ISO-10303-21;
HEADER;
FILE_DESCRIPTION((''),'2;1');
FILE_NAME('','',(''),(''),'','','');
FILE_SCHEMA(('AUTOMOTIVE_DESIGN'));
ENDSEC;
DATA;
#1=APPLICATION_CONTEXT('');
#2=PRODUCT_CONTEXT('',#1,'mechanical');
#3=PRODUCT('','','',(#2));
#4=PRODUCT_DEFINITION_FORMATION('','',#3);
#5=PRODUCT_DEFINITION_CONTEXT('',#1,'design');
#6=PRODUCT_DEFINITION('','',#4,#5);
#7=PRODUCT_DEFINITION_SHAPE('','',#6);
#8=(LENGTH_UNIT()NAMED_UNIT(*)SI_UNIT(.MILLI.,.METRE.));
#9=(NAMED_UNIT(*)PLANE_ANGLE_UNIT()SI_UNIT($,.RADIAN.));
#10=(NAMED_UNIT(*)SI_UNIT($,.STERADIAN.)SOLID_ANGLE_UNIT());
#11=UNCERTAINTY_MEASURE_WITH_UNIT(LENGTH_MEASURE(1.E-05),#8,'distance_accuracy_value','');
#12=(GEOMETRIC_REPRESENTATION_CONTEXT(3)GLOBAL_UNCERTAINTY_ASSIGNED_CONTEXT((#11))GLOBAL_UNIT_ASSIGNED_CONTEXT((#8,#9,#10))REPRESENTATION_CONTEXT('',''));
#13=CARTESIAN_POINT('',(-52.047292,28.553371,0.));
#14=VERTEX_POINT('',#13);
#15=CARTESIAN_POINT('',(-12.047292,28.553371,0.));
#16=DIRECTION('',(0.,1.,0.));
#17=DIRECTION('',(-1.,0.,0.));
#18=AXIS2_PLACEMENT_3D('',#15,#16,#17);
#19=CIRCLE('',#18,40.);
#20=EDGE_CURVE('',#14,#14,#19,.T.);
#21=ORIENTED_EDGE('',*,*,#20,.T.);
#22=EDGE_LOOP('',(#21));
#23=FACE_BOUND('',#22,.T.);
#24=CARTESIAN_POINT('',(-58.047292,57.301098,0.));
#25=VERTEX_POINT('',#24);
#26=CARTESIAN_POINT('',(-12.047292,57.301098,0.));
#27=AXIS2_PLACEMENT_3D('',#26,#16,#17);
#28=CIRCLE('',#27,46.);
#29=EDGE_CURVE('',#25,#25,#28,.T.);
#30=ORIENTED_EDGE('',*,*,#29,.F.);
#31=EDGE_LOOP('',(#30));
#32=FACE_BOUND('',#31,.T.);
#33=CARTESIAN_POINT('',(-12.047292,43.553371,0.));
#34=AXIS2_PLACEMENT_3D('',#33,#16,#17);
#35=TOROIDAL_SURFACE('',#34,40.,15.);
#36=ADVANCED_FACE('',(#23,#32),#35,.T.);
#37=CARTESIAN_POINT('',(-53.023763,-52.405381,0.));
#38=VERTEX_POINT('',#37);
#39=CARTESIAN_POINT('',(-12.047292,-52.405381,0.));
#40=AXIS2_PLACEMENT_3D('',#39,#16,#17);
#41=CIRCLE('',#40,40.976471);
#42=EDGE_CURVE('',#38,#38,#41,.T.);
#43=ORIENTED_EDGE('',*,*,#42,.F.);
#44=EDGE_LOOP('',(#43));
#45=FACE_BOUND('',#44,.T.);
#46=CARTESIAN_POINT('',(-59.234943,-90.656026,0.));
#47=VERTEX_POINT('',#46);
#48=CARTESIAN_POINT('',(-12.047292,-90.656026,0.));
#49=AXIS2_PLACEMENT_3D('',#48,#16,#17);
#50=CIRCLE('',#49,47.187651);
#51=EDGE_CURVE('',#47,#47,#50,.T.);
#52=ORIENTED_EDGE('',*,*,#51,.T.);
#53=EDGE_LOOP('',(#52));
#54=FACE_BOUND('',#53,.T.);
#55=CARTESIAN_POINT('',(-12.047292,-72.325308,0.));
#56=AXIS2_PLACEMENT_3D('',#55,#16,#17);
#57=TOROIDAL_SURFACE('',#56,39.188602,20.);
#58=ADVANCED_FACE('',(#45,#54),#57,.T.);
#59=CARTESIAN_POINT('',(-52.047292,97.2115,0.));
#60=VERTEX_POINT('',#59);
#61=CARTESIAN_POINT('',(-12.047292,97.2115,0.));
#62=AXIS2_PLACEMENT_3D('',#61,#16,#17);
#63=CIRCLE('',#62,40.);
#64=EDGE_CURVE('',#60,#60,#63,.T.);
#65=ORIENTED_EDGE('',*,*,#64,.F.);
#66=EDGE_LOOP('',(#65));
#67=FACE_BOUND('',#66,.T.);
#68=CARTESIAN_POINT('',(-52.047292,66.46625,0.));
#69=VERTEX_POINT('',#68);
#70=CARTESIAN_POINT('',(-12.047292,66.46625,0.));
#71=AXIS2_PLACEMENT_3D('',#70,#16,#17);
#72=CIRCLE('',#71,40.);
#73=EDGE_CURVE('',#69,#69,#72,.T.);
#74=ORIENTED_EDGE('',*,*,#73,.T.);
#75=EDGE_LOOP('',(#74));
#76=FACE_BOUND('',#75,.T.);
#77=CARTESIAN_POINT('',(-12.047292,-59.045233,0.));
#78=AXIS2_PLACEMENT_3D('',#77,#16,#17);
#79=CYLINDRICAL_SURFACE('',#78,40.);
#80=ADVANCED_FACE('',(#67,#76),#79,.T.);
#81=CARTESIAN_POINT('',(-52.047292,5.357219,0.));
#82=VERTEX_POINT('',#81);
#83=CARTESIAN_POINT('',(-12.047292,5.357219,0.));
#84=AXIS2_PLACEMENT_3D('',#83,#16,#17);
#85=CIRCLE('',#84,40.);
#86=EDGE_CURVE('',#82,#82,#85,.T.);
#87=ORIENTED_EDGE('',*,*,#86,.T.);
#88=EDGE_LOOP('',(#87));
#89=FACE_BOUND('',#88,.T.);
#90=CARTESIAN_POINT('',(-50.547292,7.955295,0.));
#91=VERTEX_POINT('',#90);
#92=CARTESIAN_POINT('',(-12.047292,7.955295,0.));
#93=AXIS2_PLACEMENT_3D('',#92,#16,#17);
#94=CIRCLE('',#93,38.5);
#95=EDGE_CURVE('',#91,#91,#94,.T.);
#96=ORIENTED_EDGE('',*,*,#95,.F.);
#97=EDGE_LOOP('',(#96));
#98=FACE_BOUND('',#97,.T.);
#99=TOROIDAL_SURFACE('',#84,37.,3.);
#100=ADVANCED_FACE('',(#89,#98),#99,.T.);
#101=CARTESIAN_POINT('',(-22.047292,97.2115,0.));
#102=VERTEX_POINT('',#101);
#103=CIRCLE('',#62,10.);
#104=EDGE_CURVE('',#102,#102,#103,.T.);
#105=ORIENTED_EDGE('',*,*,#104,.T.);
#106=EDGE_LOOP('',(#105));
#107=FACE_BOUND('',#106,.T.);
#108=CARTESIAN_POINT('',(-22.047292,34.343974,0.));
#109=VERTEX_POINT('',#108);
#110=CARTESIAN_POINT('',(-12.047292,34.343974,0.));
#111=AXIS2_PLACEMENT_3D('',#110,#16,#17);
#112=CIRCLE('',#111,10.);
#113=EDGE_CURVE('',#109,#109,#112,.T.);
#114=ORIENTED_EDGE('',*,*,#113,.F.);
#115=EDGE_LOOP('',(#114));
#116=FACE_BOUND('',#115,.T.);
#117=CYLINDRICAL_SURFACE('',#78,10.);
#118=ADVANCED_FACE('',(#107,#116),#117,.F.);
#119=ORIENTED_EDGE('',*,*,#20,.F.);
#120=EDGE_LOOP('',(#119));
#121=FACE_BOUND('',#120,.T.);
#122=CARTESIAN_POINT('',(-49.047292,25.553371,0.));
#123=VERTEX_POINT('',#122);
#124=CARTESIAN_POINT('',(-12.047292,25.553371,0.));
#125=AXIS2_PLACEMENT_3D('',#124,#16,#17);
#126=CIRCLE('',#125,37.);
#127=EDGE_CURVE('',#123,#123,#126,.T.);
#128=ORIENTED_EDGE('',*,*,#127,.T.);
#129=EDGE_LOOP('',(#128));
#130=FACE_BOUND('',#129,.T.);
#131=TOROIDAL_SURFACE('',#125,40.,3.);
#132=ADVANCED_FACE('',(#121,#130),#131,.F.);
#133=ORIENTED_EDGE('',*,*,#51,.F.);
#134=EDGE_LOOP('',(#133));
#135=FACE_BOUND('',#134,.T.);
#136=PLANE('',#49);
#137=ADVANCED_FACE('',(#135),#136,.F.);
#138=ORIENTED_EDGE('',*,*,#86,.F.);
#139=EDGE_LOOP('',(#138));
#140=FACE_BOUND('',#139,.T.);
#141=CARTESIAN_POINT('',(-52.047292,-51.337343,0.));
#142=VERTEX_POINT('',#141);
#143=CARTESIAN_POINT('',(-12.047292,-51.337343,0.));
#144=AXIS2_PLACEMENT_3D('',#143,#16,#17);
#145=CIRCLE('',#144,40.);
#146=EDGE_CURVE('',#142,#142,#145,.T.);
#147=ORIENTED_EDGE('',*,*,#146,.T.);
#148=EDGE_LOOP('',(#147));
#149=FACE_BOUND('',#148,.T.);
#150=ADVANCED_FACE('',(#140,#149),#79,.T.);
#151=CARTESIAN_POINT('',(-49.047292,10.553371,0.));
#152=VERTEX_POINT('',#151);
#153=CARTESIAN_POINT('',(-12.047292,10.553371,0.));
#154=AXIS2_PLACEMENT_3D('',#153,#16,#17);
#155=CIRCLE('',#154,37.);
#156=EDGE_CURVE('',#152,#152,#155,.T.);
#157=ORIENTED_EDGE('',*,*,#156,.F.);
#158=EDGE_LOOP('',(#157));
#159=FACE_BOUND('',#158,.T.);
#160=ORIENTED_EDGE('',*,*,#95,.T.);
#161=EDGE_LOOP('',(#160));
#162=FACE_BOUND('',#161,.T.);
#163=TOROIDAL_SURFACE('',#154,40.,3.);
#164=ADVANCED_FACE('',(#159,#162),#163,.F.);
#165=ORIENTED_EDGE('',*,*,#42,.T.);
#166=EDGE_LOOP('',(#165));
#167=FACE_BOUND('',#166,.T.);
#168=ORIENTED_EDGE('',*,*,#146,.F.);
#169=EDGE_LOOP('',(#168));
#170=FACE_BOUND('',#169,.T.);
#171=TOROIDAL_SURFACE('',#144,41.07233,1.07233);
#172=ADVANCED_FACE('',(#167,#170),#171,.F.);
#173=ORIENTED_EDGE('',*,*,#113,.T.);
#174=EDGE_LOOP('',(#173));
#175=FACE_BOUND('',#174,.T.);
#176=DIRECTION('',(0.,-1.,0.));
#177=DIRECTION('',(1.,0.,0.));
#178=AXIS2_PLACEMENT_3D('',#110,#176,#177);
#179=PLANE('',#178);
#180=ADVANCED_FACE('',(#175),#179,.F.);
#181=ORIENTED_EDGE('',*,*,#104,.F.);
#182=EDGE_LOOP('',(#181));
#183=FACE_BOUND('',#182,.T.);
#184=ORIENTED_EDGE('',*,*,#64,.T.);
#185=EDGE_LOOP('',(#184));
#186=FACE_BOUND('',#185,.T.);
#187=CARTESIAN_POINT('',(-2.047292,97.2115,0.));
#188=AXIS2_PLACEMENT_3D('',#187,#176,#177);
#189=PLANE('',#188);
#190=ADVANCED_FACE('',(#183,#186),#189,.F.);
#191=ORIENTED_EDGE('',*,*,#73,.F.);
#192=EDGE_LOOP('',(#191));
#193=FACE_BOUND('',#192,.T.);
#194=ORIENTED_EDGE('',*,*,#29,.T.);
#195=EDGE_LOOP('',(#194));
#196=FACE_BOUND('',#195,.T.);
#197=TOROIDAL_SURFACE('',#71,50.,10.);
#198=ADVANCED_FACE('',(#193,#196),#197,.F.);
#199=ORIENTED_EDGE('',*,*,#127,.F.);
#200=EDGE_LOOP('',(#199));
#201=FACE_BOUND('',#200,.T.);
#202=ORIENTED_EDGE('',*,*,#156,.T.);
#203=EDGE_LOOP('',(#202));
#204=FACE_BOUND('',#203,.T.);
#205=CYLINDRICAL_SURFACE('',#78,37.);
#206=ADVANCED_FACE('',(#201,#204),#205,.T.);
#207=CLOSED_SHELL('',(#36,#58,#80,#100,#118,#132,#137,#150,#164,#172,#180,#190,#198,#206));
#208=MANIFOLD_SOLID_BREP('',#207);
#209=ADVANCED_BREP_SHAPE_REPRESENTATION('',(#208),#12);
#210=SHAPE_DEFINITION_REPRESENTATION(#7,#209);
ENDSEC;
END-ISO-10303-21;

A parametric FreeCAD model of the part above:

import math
import FreeCAD as App
import Part
import Sketcher
Q = App.Units.Quantity

doc = App.newDocument("Part")
body = doc.addObject("PartDesign::Body", "Body")

sketch1 = body.newObject("Sketcher::SketchObject", "Sketch")
sketch1.AttachmentSupport = (doc.getObject("XY_Plane"), [""])
sketch1.MapMode = "FlatFace"
sketch1.addGeometry(Part.LineSegment(App.Vector(-12, 34.3, 0), App.Vector(-12, -90.7, 0)), False)
sketch1.addGeometry(Part.LineSegment(App.Vector(-12, -90.7, 0), App.Vector(35.1, -90.7, 0)), False)
sketch1.addGeometry(Part.ArcOfCircle(Part.Circle(App.Vector(27.1, -72.3, 0), App.Vector(0, 0, 1), 20), math.radians(-66), math.radians(85)), False)
sketch1.addGeometry(Part.ArcOfCircle(Part.Circle(App.Vector(29, -51.3, 0), App.Vector(0, 0, 1), 1.1), math.radians(180), math.radians(265)), False)
sketch1.addGeometry(Part.LineSegment(App.Vector(28, -51.3, 0), App.Vector(28, 5.4, 0)), False)
sketch1.addGeometry(Part.ArcOfCircle(Part.Circle(App.Vector(25, 5.4, 0), App.Vector(0, 0, 1), 3), math.radians(0), math.radians(60)), False)
sketch1.addGeometry(Part.ArcOfCircle(Part.Circle(App.Vector(28, 10.6, 0), App.Vector(0, 0, 1), 3), math.radians(-180), math.radians(-120)), False)
sketch1.addGeometry(Part.LineSegment(App.Vector(25, 10.6, 0), App.Vector(25, 25.6, 0)), False)
sketch1.addGeometry(Part.ArcOfCircle(Part.Circle(App.Vector(28, 25.6, 0), App.Vector(0, 0, 1), 3), math.radians(90), math.radians(180)), False)
sketch1.addGeometry(Part.ArcOfCircle(Part.Circle(App.Vector(28, 43.6, 0), App.Vector(0, 0, 1), 15), math.radians(-90), math.radians(66)), False)
sketch1.addGeometry(Part.ArcOfCircle(Part.Circle(App.Vector(38, 66.5, 0), App.Vector(0, 0, 1), 10), math.radians(-180), math.radians(-114)), False)
sketch1.addGeometry(Part.LineSegment(App.Vector(28, 66.5, 0), App.Vector(28, 97.2, 0)), False)
sketch1.addGeometry(Part.LineSegment(App.Vector(28, 97.2, 0), App.Vector(-2, 97.2, 0)), False)
sketch1.addGeometry(Part.LineSegment(App.Vector(-2, 97.2, 0), App.Vector(-2, 34.3, 0)), False)
sketch1.addGeometry(Part.LineSegment(App.Vector(-2, 34.3, 0), App.Vector(-12, 34.3, 0)), False)
sketch1.addGeometry(Part.LineSegment(App.Vector(-12, 97.2, 0), App.Vector(-12, -90.7, 0)), True)
sketch1.addConstraint(Sketcher.Constraint("Coincident", 0, 2, 1, 1))
sketch1.addConstraint(Sketcher.Constraint("Coincident", 1, 2, 2, 1))
sketch1.addConstraint(Sketcher.Constraint("Tangent", 2, 2, 3, 2))
sketch1.addConstraint(Sketcher.Constraint("Tangent", 3, 1, 4, 1))
sketch1.addConstraint(Sketcher.Constraint("Tangent", 4, 2, 5, 1))
sketch1.addConstraint(Sketcher.Constraint("Tangent", 5, 2, 6, 2))
sketch1.addConstraint(Sketcher.Constraint("Tangent", 6, 1, 7, 1))
sketch1.addConstraint(Sketcher.Constraint("Tangent", 7, 2, 8, 2))
sketch1.addConstraint(Sketcher.Constraint("Tangent", 8, 1, 9, 1))
sketch1.addConstraint(Sketcher.Constraint("Tangent", 9, 2, 10, 2))
sketch1.addConstraint(Sketcher.Constraint("Tangent", 10, 1, 11, 1))
sketch1.addConstraint(Sketcher.Constraint("Coincident", 11, 2, 12, 1))
sketch1.addConstraint(Sketcher.Constraint("Coincident", 12, 2, 13, 1))
sketch1.addConstraint(Sketcher.Constraint("Coincident", 13, 2, 14, 1))
sketch1.addConstraint(Sketcher.Constraint("Coincident", 14, 2, 0, 1))
sketch1.addConstraint(Sketcher.Constraint("Vertical", 0))
sketch1.addConstraint(Sketcher.Constraint("Horizontal", 1))
sketch1.addConstraint(Sketcher.Constraint("Vertical", 4))
sketch1.addConstraint(Sketcher.Constraint("Vertical", 7))
sketch1.addConstraint(Sketcher.Constraint("Vertical", 11))
sketch1.addConstraint(Sketcher.Constraint("Horizontal", 12))
sketch1.addConstraint(Sketcher.Constraint("Vertical", 13))
sketch1.addConstraint(Sketcher.Constraint("Horizontal", 14))
sketch1.addConstraint(Sketcher.Constraint("Vertical", 15))
sketch1.addConstraint(Sketcher.Constraint("Coincident", 15, 2, 0, 2))
sketch1.addConstraint(Sketcher.Constraint("Equal", 5, 6))
sketch1.addConstraint(Sketcher.Constraint("Equal", 6, 8))
sketch1.addConstraint(Sketcher.Constraint("Horizontal", 12, 2, 15, 1))
sketch1.addConstraint(Sketcher.Constraint("Vertical", 8, 3, 9, 3))
sketch1.addConstraint(Sketcher.Constraint("Vertical", 9, 3, 3, 1))
sketch1.addConstraint(Sketcher.Constraint("Vertical", 8, 1, 10, 1))
sketch1.addConstraint(Sketcher.Constraint("Radius", 2, Q("20 mm")))
sketch1.addConstraint(Sketcher.Constraint("Radius", 5, Q("3 mm")))
sketch1.addConstraint(Sketcher.Constraint("Radius", 9, Q("15 mm")))
sketch1.addConstraint(Sketcher.Constraint("Radius", 10, Q("10 mm")))
sketch1.addConstraint(Sketcher.Constraint("DistanceX", 12, 2, 12, 1, Q("30 mm")))
sketch1.addConstraint(Sketcher.Constraint("DistanceX", 14, 2, 14, 1, Q("10 mm")))
sketch1.addConstraint(Sketcher.Constraint("DistanceY", 0, 2, 0, 1, Q("125 mm")))
sketch1.addConstraint(Sketcher.Constraint("DistanceY", 7, 1, 7, 2, Q("15 mm")))
sketch1.addConstraint(Sketcher.Constraint("Radius", 3, Q("1.07233 mm")))
sketch1.addConstraint(Sketcher.Constraint("DistanceX", 1, 1, 1, 2, Q("47.187651 mm")))
sketch1.addConstraint(Sketcher.Constraint("DistanceY", 11, 1, 11, 2, Q("30.74525 mm")))
sketch1.addConstraint(Sketcher.Constraint("DistanceY", -1, 1, 9, 2, Q("57.301098 mm")))
sketch1.addConstraint(Sketcher.Constraint("DistanceX", 5, 3, 2, 3, Q("2.188602 mm")))
sketch1.addConstraint(Sketcher.Constraint("DistanceY", 2, 2, 5, 3, Q("57.762599 mm")))
sketch1.addConstraint(Sketcher.Constraint("DistanceX", -1, 1, 2, 3, Q("27.14131 mm")))
revolution = body.newObject("PartDesign::Revolution", "Revolution")
revolution.Profile = sketch1
revolution.ReferenceAxis = (sketch1, ["Axis0"])
revolution.Angle = 360

doc.recompute()
